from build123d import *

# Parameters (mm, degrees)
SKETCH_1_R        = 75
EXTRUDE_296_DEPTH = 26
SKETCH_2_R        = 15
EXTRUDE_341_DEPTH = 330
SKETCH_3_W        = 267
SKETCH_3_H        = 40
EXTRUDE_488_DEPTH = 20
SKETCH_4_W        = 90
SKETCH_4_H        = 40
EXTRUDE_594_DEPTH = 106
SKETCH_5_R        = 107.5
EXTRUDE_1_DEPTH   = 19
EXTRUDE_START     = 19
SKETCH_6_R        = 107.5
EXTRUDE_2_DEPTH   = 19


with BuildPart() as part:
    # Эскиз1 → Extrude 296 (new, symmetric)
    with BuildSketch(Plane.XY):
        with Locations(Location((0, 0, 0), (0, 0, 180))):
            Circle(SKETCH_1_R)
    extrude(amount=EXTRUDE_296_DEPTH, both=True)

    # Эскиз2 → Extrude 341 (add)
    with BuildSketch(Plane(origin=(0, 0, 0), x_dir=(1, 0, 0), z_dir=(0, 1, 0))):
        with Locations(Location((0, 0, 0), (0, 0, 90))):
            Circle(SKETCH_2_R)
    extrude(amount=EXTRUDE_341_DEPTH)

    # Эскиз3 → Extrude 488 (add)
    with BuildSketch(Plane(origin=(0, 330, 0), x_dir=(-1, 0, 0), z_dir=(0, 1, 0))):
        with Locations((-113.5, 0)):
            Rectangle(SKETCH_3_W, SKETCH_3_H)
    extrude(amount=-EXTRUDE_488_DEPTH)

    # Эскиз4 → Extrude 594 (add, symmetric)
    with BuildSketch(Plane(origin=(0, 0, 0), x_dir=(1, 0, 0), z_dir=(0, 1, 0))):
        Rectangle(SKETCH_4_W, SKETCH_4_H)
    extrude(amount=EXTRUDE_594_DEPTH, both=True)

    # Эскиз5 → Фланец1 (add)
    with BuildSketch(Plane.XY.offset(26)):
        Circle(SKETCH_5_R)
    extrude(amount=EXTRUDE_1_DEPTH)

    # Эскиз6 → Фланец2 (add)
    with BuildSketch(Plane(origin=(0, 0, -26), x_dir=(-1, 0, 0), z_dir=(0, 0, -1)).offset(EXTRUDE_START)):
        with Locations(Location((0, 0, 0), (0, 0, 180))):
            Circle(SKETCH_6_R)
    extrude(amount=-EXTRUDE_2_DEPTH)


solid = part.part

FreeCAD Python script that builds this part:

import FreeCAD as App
import Part
import Sketcher

V = App.Vector
Q = App.Units.Quantity

doc = App.newDocument("Part")
body = doc.addObject("PartDesign::Body", "Body")

# Sketch on XY plane
sketch1 = doc.addObject("Sketcher::SketchObject", "Sketch")
body.addObject(sketch1)
sketch1.AttachmentSupport = (doc.XY_Plane, [""])
sketch1.MapMode = "FlatFace"
sketch1.addGeometry(Part.Circle(V(0, 0, 0), V(0, 0, 1), 75), False)
sketch1.addConstraint([
    Sketcher.Constraint("Coincident", 0, 3, -1, 1),
    Sketcher.Constraint("Diameter", 0, Q("150 mm")),
])
pad1 = doc.addObject("PartDesign::Pad", "Pad")
body.addObject(pad1)
pad1.Profile = sketch1
pad1.Length = 52
pad1.Midplane = True

# Sketch on XZ plane
sketch2 = doc.addObject("Sketcher::SketchObject", "Sketch001")
body.addObject(sketch2)
sketch2.AttachmentSupport = (doc.XZ_Plane, [""])
sketch2.MapMode = "FlatFace"
sketch2.addGeometry(Part.Circle(V(0, 0, 0), V(0, 0, 1), 15), False)
sketch2.addConstraint([
    Sketcher.Constraint("Coincident", 0, 3, -1, 1),
    Sketcher.Constraint("Diameter", 0, Q("30 mm")),
])
pad2 = doc.addObject("PartDesign::Pad", "Pad001")
body.addObject(pad2)
pad2.Profile = sketch2
pad2.Length = 330
pad2.Reversed = True

# Sketch on XZ plane
sketch3 = doc.addObject("Sketcher::SketchObject", "Sketch002")
body.addObject(sketch3)
sketch3.AttachmentSupport = (doc.XZ_Plane, [""])
sketch3.MapMode = "FlatFace"
sketch3.AttachmentOffset = App.Placement(V(0, 0, -330), App.Rotation())
sketch3.addGeometry([
    Part.LineSegment(V(247, 20, 0), V(247, -20, 0)),
    Part.LineSegment(V(247, -20, 0), V(-20, -20, 0)),
    Part.LineSegment(V(-20, -20, 0), V(-20, 20, 0)),
    Part.LineSegment(V(-20, 20, 0), V(247, 20, 0)),
], False)
sketch3.addConstraint([
    Sketcher.Constraint("Coincident", 0, 2, 1, 1),
    Sketcher.Constraint("Coincident", 1, 2, 2, 1),
    Sketcher.Constraint("Coincident", 2, 2, 3, 1),
    Sketcher.Constraint("Coincident", 3, 2, 0, 1),
    Sketcher.Constraint("Vertical", 0),
    Sketcher.Constraint("Horizontal", 1),
    Sketcher.Constraint("Vertical", 2),
    Sketcher.Constraint("Horizontal", 3),
    Sketcher.Constraint("DistanceX", 1, 2, 1, 1, Q("267 mm")),
    Sketcher.Constraint("DistanceY", 0, 2, 0, 1, Q("40 mm")),
    Sketcher.Constraint("DistanceX", -1, 1, 0, 2, Q("247 mm")),
    Sketcher.Constraint("DistanceY", 0, 2, -1, 1, Q("20 mm")),
])
pad3 = doc.addObject("PartDesign::Pad", "Pad002")
body.addObject(pad3)
pad3.Profile = sketch3
pad3.Length = 20

# Sketch on XZ plane
sketch4 = doc.addObject("Sketcher::SketchObject", "Sketch003")
body.addObject(sketch4)
sketch4.AttachmentSupport = (doc.XZ_Plane, [""])
sketch4.MapMode = "FlatFace"
sketch4.addGeometry([
    Part.LineSegment(V(-45, -20, 0), V(-45, 20, 0)),
    Part.LineSegment(V(-45, 20, 0), V(45, 20, 0)),
    Part.LineSegment(V(45, 20, 0), V(45, -20, 0)),
    Part.LineSegment(V(45, -20, 0), V(-45, -20, 0)),
], False)
sketch4.addConstraint([
    Sketcher.Constraint("Coincident", 0, 2, 1, 1),
    Sketcher.Constraint("Coincident", 1, 2, 2, 1),
    Sketcher.Constraint("Coincident", 2, 2, 3, 1),
    Sketcher.Constraint("Coincident", 3, 2, 0, 1),
    Sketcher.Constraint("Vertical", 0),
    Sketcher.Constraint("Horizontal", 1),
    Sketcher.Constraint("Vertical", 2),
    Sketcher.Constraint("Horizontal", 3),
    Sketcher.Constraint("Symmetric", 0, 2, 2, 2, -1, 1),
    Sketcher.Constraint("DistanceX", 1, 1, 1, 2, Q("90 mm")),
    Sketcher.Constraint("DistanceY", 0, 1, 0, 2, Q("40 mm")),
])
pad4 = doc.addObject("PartDesign::Pad", "Pad003")
body.addObject(pad4)
pad4.Profile = sketch4
pad4.Length = 212
pad4.Midplane = True

# Sketch on XY plane
sketch5 = doc.addObject("Sketcher::SketchObject", "Sketch004")
body.addObject(sketch5)
sketch5.AttachmentSupport = (doc.XY_Plane, [""])
sketch5.MapMode = "FlatFace"
sketch5.AttachmentOffset = App.Placement(V(0, 0, 26), App.Rotation())
sketch5.addGeometry(Part.Circle(V(0, 0, 0), V(0, 0, 1), 107.5), False)
sketch5.addConstraint([
    Sketcher.Constraint("Coincident", 0, 3, -1, 1),
    Sketcher.Constraint("Diameter", 0, Q("215 mm")),
])
pad5 = doc.addObject("PartDesign::Pad", "Pad004")
body.addObject(pad5)
pad5.Profile = sketch5
pad5.Length = 19

# Sketch on XY plane
sketch6 = doc.addObject("Sketcher::SketchObject", "Sketch005")
body.addObject(sketch6)
sketch6.AttachmentSupport = (doc.XY_Plane, [""])
sketch6.MapMode = "FlatFace"
sketch6.AttachmentOffset = App.Placement(V(0, 0, -45), App.Rotation())
sketch6.addGeometry(Part.Circle(V(0, 0, 0), V(0, 0, 1), 107.5), False)
sketch6.addConstraint([
    Sketcher.Constraint("Coincident", 0, 3, -1, 1),
    Sketcher.Constraint("Diameter", 0, Q("215 mm")),
])
pad6 = doc.addObject("PartDesign::Pad", "Pad005")
body.addObject(pad6)
pad6.Profile = sketch6
pad6.Length = 19

doc.recompute()
